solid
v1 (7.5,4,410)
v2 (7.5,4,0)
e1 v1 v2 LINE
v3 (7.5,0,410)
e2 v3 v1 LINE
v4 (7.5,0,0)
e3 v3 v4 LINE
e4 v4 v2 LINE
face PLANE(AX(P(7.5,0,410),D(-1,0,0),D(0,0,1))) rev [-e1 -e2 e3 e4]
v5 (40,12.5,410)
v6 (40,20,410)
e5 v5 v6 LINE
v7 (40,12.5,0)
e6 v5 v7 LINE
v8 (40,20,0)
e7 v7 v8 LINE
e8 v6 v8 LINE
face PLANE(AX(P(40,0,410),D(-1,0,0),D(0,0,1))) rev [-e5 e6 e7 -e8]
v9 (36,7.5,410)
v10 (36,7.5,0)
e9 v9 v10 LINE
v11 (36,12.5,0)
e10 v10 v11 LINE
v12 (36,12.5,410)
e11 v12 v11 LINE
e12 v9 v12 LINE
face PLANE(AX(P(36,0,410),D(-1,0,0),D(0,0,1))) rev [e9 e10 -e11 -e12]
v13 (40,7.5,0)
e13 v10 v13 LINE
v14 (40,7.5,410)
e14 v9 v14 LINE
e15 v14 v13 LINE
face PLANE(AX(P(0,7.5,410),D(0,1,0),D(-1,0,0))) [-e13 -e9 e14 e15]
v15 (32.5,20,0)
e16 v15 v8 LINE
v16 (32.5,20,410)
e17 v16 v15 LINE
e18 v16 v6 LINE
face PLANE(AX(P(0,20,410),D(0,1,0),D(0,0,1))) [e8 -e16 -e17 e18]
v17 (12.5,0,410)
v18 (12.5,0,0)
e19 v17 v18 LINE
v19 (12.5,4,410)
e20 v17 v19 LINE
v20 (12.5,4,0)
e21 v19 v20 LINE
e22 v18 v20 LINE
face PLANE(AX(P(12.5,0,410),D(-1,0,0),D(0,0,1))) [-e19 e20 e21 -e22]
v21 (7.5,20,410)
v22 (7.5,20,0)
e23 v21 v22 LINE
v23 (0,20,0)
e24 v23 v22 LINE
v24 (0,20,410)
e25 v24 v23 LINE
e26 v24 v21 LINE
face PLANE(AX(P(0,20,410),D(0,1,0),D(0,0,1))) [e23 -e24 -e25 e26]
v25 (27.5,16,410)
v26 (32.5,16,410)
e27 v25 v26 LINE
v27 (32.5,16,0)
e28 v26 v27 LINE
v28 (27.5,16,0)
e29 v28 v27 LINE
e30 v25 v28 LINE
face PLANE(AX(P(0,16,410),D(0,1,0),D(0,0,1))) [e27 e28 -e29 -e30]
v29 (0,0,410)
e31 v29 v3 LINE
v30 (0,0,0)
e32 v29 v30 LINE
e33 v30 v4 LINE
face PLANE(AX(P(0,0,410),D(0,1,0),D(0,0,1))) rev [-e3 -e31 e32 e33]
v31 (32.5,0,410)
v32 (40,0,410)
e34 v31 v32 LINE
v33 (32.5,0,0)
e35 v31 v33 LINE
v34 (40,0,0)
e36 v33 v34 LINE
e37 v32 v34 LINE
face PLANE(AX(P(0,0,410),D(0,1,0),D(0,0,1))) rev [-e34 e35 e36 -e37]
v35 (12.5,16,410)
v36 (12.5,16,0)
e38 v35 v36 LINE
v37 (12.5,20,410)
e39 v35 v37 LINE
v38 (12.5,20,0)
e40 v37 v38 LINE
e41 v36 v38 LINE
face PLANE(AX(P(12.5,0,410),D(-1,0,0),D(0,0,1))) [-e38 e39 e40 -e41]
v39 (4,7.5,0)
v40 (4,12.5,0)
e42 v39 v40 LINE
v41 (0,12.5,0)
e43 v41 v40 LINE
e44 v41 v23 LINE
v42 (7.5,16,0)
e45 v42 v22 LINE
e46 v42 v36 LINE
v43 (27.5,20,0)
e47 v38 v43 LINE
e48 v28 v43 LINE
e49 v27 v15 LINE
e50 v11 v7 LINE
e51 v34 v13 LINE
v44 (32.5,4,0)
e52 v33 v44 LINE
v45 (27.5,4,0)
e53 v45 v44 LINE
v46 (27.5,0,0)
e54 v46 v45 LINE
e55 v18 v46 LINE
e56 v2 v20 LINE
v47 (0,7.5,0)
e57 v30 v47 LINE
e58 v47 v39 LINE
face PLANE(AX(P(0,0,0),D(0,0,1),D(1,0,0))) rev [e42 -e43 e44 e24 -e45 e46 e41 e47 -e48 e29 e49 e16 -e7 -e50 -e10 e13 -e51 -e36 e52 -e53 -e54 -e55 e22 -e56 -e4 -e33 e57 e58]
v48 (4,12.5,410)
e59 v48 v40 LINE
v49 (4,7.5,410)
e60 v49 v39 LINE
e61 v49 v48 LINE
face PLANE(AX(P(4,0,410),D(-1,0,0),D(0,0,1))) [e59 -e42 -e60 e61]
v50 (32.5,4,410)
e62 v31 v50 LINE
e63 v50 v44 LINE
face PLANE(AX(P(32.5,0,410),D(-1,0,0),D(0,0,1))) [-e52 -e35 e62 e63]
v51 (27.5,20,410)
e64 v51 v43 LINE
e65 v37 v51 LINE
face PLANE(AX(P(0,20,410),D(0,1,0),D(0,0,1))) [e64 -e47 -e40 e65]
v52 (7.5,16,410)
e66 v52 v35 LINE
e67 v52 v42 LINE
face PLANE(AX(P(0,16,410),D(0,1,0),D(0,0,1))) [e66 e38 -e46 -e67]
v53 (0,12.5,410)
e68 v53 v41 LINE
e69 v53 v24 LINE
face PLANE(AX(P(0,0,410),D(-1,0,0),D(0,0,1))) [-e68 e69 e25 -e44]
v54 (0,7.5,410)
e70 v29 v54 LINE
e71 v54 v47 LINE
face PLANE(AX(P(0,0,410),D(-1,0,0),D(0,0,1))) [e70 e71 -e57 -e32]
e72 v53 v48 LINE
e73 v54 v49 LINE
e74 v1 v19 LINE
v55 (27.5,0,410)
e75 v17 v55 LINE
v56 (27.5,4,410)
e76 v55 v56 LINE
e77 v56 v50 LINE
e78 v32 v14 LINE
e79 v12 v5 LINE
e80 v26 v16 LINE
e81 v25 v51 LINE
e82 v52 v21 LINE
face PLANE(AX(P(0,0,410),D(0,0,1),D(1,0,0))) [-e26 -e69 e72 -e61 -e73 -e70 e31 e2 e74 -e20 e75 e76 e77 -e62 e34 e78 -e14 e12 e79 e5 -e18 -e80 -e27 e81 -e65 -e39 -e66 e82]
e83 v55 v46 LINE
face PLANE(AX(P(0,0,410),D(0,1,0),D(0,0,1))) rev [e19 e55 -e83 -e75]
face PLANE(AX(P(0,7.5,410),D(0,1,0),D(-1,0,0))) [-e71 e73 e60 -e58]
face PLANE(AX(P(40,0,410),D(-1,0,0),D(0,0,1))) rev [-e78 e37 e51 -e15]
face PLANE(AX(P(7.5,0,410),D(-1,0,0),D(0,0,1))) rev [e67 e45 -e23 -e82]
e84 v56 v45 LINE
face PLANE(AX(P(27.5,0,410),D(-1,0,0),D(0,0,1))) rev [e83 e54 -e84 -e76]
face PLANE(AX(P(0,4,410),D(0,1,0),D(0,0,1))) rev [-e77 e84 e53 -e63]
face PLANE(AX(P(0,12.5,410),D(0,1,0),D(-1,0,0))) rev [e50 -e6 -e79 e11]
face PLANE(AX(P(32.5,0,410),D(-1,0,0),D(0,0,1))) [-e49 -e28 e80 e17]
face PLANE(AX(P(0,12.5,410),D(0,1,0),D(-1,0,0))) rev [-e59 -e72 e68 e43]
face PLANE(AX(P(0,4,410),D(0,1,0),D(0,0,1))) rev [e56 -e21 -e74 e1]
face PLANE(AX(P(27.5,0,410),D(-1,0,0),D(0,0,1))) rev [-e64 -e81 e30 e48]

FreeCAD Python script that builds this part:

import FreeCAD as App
import Part
import Sketcher

V = App.Vector
Q = App.Units.Quantity

doc = App.newDocument("Part")
body = doc.addObject("PartDesign::Body", "Body")

# Sketch on XY plane
sketch1 = body.newObject("Sketcher::SketchObject", "Sketch")
sketch1.AttachmentSupport = (doc.getObject("XY_Plane"), [""])
sketch1.MapMode = "FlatFace"
sketch1.addGeometry([
    Part.LineSegment(V(7.5, 20, 0), V(0, 20, 0)),  # 0
    Part.LineSegment(V(0, 20, 0), V(0, 12.5, 0)),  # 1
    Part.LineSegment(V(0, 12.5, 0), V(4, 12.5, 0)),  # 2
    Part.LineSegment(V(4, 12.5, 0), V(4, 7.5, 0)),  # 3
    Part.LineSegment(V(4, 7.5, 0), V(0, 7.5, 0)),  # 4
    Part.LineSegment(V(0, 7.5, 0), V(0, 0, 0)),  # 5
    Part.LineSegment(V(0, 0, 0), V(7.5, 0, 0)),  # 6
    Part.LineSegment(V(7.5, 0, 0), V(7.5, 4, 0)),  # 7
    Part.LineSegment(V(7.5, 4, 0), V(12.5, 4, 0)),  # 8
    Part.LineSegment(V(12.5, 4, 0), V(12.5, 0, 0)),  # 9
    Part.LineSegment(V(12.5, 0, 0), V(27.5, 0, 0)),  # 10
    Part.LineSegment(V(27.5, 0, 0), V(27.5, 4, 0)),  # 11
    Part.LineSegment(V(27.5, 4, 0), V(32.5, 4, 0)),  # 12
    Part.LineSegment(V(32.5, 4, 0), V(32.5, 0, 0)),  # 13
    Part.LineSegment(V(32.5, 0, 0), V(40, 0, 0)),  # 14
    Part.LineSegment(V(40, 0, 0), V(40, 7.5, 0)),  # 15
    Part.LineSegment(V(40, 7.5, 0), V(36, 7.5, 0)),  # 16
    Part.LineSegment(V(36, 7.5, 0), V(36, 12.5, 0)),  # 17
    Part.LineSegment(V(36, 12.5, 0), V(40, 12.5, 0)),  # 18
    Part.LineSegment(V(40, 12.5, 0), V(40, 20, 0)),  # 19
    Part.LineSegment(V(40, 20, 0), V(32.5, 20, 0)),  # 20
    Part.LineSegment(V(32.5, 20, 0), V(32.5, 16, 0)),  # 21
    Part.LineSegment(V(32.5, 16, 0), V(27.5, 16, 0)),  # 22
    Part.LineSegment(V(27.5, 16, 0), V(27.5, 20, 0)),  # 23
    Part.LineSegment(V(27.5, 20, 0), V(12.5, 20, 0)),  # 24
    Part.LineSegment(V(12.5, 20, 0), V(12.5, 16, 0)),  # 25
    Part.LineSegment(V(12.5, 16, 0), V(7.5, 16, 0)),  # 26
    Part.LineSegment(V(7.5, 16, 0), V(7.5, 20, 0)),  # 27
], False)
sketch1.addConstraint([
    Sketcher.Constraint("Coincident", 0, 2, 1, 1),
    Sketcher.Constraint("Coincident", 1, 2, 2, 1),
    Sketcher.Constraint("Coincident", 2, 2, 3, 1),
    Sketcher.Constraint("Coincident", 3, 2, 4, 1),
    Sketcher.Constraint("Coincident", 4, 2, 5, 1),
    Sketcher.Constraint("Coincident", 5, 2, 6, 1),
    Sketcher.Constraint("Coincident", 6, 2, 7, 1),
    Sketcher.Constraint("Coincident", 7, 2, 8, 1),
    Sketcher.Constraint("Coincident", 8, 2, 9, 1),
    Sketcher.Constraint("Coincident", 9, 2, 10, 1),
    Sketcher.Constraint("Coincident", 10, 2, 11, 1),
    Sketcher.Constraint("Coincident", 11, 2, 12, 1),
    Sketcher.Constraint("Coincident", 12, 2, 13, 1),
    Sketcher.Constraint("Coincident", 13, 2, 14, 1),
    Sketcher.Constraint("Coincident", 14, 2, 15, 1),
    Sketcher.Constraint("Coincident", 15, 2, 16, 1),
    Sketcher.Constraint("Coincident", 16, 2, 17, 1),
    Sketcher.Constraint("Coincident", 17, 2, 18, 1),
    Sketcher.Constraint("Coincident", 18, 2, 19, 1),
    Sketcher.Constraint("Coincident", 19, 2, 20, 1),
    Sketcher.Constraint("Coincident", 20, 2, 21, 1),
    Sketcher.Constraint("Coincident", 21, 2, 22, 1),
    Sketcher.Constraint("Coincident", 22, 2, 23, 1),
    Sketcher.Constraint("Coincident", 23, 2, 24, 1),
    Sketcher.Constraint("Coincident", 24, 2, 25, 1),
    Sketcher.Constraint("Coincident", 25, 2, 26, 1),
    Sketcher.Constraint("Coincident", 26, 2, 27, 1),
    Sketcher.Constraint("Coincident", 27, 2, 0, 1),
    Sketcher.Constraint("Horizontal", 0),
    Sketcher.Constraint("Vertical", 1),
    Sketcher.Constraint("Horizontal", 2),
    Sketcher.Constraint("Vertical", 3),
    Sketcher.Constraint("Horizontal", 4),
    Sketcher.Constraint("Vertical", 5),
    Sketcher.Constraint("Horizontal", 6),
    Sketcher.Constraint("Vertical", 7),
    Sketcher.Constraint("Horizontal", 8),
    Sketcher.Constraint("Vertical", 9),
    Sketcher.Constraint("Horizontal", 10),
    Sketcher.Constraint("Vertical", 11),
    Sketcher.Constraint("Horizontal", 12),
    Sketcher.Constraint("Vertical", 13),
    Sketcher.Constraint("Horizontal", 14),
    Sketcher.Constraint("Vertical", 15),
    Sketcher.Constraint("Horizontal", 16),
    Sketcher.Constraint("Vertical", 17),
    Sketcher.Constraint("Horizontal", 18),
    Sketcher.Constraint("Vertical", 19),
    Sketcher.Constraint("Horizontal", 20),
    Sketcher.Constraint("Vertical", 21),
    Sketcher.Constraint("Horizontal", 22),
    Sketcher.Constraint("Vertical", 23),
    Sketcher.Constraint("Horizontal", 24),
    Sketcher.Constraint("Vertical", 25),
    Sketcher.Constraint("Horizontal", 26),
    Sketcher.Constraint("Vertical", 27),
    Sketcher.Constraint("Coincident", 5, 2, -1, 1),
    Sketcher.Constraint("PointOnObject", 0, 2, -2),
    Sketcher.Constraint("PointOnObject", 9, 2, -1),
    Sketcher.Constraint("PointOnObject", 13, 2, -1),
    Sketcher.Constraint("Horizontal", 8, 2, 11, 2),
    Sketcher.Constraint("Horizontal", 4, 2, 15, 2),
    Sketcher.Constraint("Horizontal", 2, 2, 17, 2),
    Sketcher.Constraint("Horizontal", 0, 2, 19, 2),
    Sketcher.Constraint("Horizontal", 20, 2, 23, 2),
    Sketcher.Constraint("Horizontal", 22, 2, 25, 2),
    Sketcher.Constraint("Vertical", 15, 2, 18, 2),
    Sketcher.Constraint("Vertical", 13, 2, 20, 2),
    Sketcher.Constraint("Vertical", 11, 2, 22, 2),
    Sketcher.Constraint("Vertical", 9, 2, 24, 2),
    Sketcher.Constraint("Vertical", 7, 2, 26, 2),
    Sketcher.Constraint("Equal", 8, 12),
    Sketcher.Constraint("Equal", 6, 14),
    Sketcher.Constraint("Equal", 4, 16),
    Sketcher.Constraint("Equal", 20, 1),
    Sketcher.Constraint("Equal", 26, 3),
    Sketcher.Constraint("Equal", 1, 5),
    Sketcher.Constraint("Equal", 18, 7),
    Sketcher.Constraint("Equal", 13, 21),
    Sketcher.Constraint("DistanceX", 2, 1, 2, 2, Q("4 mm")),
    Sketcher.Constraint("DistanceX", 8, 1, 8, 2, Q("5 mm")),
    Sketcher.Constraint("DistanceX", 10, 1, 10, 2, Q("15 mm")),
    Sketcher.Constraint("DistanceX", 0, 2, 0, 1, Q("7.5 mm")),
])
pad1 = body.newObject("PartDesign::Pad", "Pad")
pad1.Profile = sketch1
pad1.Length = 410

doc.recompute()
